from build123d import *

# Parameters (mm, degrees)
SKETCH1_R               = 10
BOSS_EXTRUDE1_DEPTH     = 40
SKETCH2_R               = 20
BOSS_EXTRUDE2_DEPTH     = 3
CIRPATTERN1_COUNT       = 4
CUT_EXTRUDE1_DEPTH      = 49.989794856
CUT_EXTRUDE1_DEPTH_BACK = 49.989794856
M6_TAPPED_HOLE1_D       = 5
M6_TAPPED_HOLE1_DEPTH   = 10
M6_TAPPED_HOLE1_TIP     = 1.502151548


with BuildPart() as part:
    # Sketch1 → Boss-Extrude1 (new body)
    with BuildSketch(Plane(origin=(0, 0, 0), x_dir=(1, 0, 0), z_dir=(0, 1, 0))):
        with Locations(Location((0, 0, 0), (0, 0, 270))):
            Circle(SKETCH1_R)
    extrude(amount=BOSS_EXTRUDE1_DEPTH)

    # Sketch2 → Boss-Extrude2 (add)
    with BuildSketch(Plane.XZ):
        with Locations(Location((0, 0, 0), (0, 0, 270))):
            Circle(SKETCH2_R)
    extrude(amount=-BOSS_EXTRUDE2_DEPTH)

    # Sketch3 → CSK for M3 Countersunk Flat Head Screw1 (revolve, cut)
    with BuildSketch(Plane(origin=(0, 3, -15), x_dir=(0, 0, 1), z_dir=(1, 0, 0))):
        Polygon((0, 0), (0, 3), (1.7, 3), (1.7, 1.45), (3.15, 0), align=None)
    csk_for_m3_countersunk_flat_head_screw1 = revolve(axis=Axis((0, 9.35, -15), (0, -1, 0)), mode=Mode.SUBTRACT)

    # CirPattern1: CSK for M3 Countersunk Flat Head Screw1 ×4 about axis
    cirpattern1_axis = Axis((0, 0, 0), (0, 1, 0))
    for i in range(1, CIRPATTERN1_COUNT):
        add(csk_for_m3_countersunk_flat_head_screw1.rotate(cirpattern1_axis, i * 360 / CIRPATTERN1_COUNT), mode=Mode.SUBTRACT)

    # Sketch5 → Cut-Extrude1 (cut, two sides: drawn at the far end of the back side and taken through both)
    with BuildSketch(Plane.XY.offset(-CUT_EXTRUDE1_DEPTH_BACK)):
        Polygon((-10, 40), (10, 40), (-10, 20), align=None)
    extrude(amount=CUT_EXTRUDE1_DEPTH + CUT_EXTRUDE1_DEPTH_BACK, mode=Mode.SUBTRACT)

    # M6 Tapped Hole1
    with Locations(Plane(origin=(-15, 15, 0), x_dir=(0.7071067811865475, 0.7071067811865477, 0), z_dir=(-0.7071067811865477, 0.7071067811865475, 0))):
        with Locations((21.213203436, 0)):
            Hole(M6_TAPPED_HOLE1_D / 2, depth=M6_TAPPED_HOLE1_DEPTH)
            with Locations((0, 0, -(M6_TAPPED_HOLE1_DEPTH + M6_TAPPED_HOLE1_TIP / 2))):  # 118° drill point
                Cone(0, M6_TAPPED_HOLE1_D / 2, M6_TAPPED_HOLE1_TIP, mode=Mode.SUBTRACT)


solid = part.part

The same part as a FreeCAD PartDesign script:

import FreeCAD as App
import Part
import Sketcher
from FreeCAD import Vector
Q = App.Units.Quantity

doc = App.newDocument("Part")
body = doc.addObject("PartDesign::Body", "Body")

# Sketch on XZ plane
sketch1 = body.newObject("Sketcher::SketchObject", "Sketch")
sketch1.AttachmentSupport = (doc.getObject("XZ_Plane"), [""])
sketch1.MapMode = "FlatFace"
sketch1.addGeometry(Part.Circle(Vector(0, 0, 0), Vector(0, 0, 1), 10), False)
sketch1.addConstraint([
    Sketcher.Constraint("Coincident", 0, 3, -1, 1),
    Sketcher.Constraint("Diameter", 0, 20.0),
])
pad1 = body.newObject("PartDesign::Pad", "Pad")
pad1.Profile = sketch1
pad1.Length = 40
pad1.Reversed = True

# Sketch on XZ plane
sketch2 = body.newObject("Sketcher::SketchObject", "Sketch001")
sketch2.AttachmentSupport = (doc.getObject("XZ_Plane"), [""])
sketch2.MapMode = "FlatFace"
sketch2.addGeometry(Part.Circle(Vector(0, 0, 0), Vector(0, 0, 1), 20), False)
sketch2.addConstraint([
    Sketcher.Constraint("Coincident", 0, 3, -1, 1),
    Sketcher.Constraint("Diameter", 0, 40.0),
])
pad2 = body.newObject("PartDesign::Pad", "Pad001")
pad2.Profile = sketch2
pad2.Length = 3
pad2.Reversed = True

# Sketch on YZ plane
sketch3 = body.newObject("Sketcher::SketchObject", "Sketch002")
sketch3.AttachmentSupport = (doc.getObject("YZ_Plane"), [""])
sketch3.MapMode = "FlatFace"
sketch3.addGeometry([
    Part.LineSegment(Vector(0, -15, 0), Vector(3, -15, 0)),  # 0
    Part.LineSegment(Vector(3, -15, 0), Vector(3, -11.8, 0)),  # 1
    Part.LineSegment(Vector(3, -11.8, 0), Vector(1.6, -13.3, 0)),  # 2
    Part.LineSegment(Vector(1.6, -13.3, 0), Vector(0, -13.3, 0)),  # 3
    Part.LineSegment(Vector(0, -13.3, 0), Vector(0, -15, 0)),  # 4
], False)
sketch3.addGeometry(Part.LineSegment(Vector(3, -15, 0), Vector(0, -15, 0)), True)  # axis
sketch3.addConstraint([
    Sketcher.Constraint("Coincident", 0, 2, 1, 1),
    Sketcher.Constraint("Coincident", 1, 2, 2, 1),
    Sketcher.Constraint("Coincident", 2, 2, 3, 1),
    Sketcher.Constraint("Coincident", 3, 2, 4, 1),
    Sketcher.Constraint("Coincident", 4, 2, 0, 1),
    Sketcher.Constraint("Horizontal", 0),
    Sketcher.Constraint("Vertical", 1),
    Sketcher.Constraint("Horizontal", 3),
    Sketcher.Constraint("Vertical", 4),
    Sketcher.Constraint("Horizontal", 5),
    Sketcher.Constraint("Coincident", 5, 1, 0, 2),
    Sketcher.Constraint("PointOnObject", 3, 2, -2),
    Sketcher.Constraint("PointOnObject", 5, 2, -2),
    Sketcher.Constraint("DistanceX", 0, 1, 0, 2, 3.0),
    Sketcher.Constraint("Angle", 2, Q("-135 deg")),
    Sketcher.Constraint("DistanceY", 4, 2, 4, 1, 1.7),
    Sketcher.Constraint("DistanceY", 0, 2, -1, 1, 15.0),
    Sketcher.Constraint("DistanceX", 3, 2, 3, 1, 1.55),
])
groove = body.newObject("PartDesign::Groove", "Groove")
groove.Profile = sketch3
groove.ReferenceAxis = (sketch3, ["Axis0"])
groove.Angle = 360
doc.recompute()

polarpattern = body.newObject("PartDesign::PolarPattern", "PolarPattern")
polarpattern.Originals = [groove]
polarpattern.Axis = (doc.getObject("Y_Axis"), [""])
polarpattern.Angle = 360
polarpattern.Occurrences = 4
body.Tip = polarpattern

# Sketch on XY plane
sketch4 = body.newObject("Sketcher::SketchObject", "Sketch003")
sketch4.AttachmentSupport = (doc.getObject("XY_Plane"), [""])
sketch4.MapMode = "FlatFace"
sketch4.addGeometry([
    Part.LineSegment(Vector(10, 40, 0), Vector(-10, 40, 0)),
    Part.LineSegment(Vector(-10, 40, 0), Vector(-10, 20, 0)),
    Part.LineSegment(Vector(-10, 20, 0), Vector(10, 40, 0)),
], False)
sketch4.addConstraint([
    Sketcher.Constraint("Coincident", 0, 2, 1, 1),
    Sketcher.Constraint("Coincident", 1, 2, 2, 1),
    Sketcher.Constraint("Coincident", 2, 2, 0, 1),
    Sketcher.Constraint("Horizontal", 0),
    Sketcher.Constraint("Vertical", 1),
    Sketcher.Constraint("Equal", 0, 1),
    Sketcher.Constraint("DistanceX", 0, 2, 0, 1, 20.0),
    Sketcher.Constraint("DistanceX", 0, 2, -1, 1, 10.0),
    Sketcher.Constraint("DistanceY", -1, 1, 0, 2, 40.0),
])
pocket1 = body.newObject("PartDesign::Pocket", "Pocket")
pocket1.Profile = sketch4
pocket1.Type = "ThroughAll"
pocket1.Midplane = True

# Sketch on an angled plane
sketch5 = body.newObject("Sketcher::SketchObject", "Sketch004")
sketch5.Placement = App.Placement(Vector(-15, 15, 0), App.Rotation(Vector(0.707106781, 0.707106781, 0), Vector(0, 0, -0.999999999), Vector(-0.707106781, 0.707106781, 0), "ZXY"))
sketch5.addGeometry(Part.Circle(Vector(21.2, 0, 0), Vector(0, 0, 1), 2.5), False)
sketch5.addConstraint([
    Sketcher.Constraint("PointOnObject", 0, 3, -1),
    Sketcher.Constraint("Diameter", 0, 5.0),
    Sketcher.Constraint("DistanceX", -1, 1, 0, 3, 21.213203),
])
doc.recompute()
hole = body.newObject("PartDesign::Hole", "Hole")
hole.Profile = sketch5
hole.ThreadType = "None"
hole.Diameter = 5
hole.DepthType = "Dimension"
hole.Depth = 10
hole.DrillPoint = "Angled"
hole.DrillPointAngle = 118

doc.recompute()
